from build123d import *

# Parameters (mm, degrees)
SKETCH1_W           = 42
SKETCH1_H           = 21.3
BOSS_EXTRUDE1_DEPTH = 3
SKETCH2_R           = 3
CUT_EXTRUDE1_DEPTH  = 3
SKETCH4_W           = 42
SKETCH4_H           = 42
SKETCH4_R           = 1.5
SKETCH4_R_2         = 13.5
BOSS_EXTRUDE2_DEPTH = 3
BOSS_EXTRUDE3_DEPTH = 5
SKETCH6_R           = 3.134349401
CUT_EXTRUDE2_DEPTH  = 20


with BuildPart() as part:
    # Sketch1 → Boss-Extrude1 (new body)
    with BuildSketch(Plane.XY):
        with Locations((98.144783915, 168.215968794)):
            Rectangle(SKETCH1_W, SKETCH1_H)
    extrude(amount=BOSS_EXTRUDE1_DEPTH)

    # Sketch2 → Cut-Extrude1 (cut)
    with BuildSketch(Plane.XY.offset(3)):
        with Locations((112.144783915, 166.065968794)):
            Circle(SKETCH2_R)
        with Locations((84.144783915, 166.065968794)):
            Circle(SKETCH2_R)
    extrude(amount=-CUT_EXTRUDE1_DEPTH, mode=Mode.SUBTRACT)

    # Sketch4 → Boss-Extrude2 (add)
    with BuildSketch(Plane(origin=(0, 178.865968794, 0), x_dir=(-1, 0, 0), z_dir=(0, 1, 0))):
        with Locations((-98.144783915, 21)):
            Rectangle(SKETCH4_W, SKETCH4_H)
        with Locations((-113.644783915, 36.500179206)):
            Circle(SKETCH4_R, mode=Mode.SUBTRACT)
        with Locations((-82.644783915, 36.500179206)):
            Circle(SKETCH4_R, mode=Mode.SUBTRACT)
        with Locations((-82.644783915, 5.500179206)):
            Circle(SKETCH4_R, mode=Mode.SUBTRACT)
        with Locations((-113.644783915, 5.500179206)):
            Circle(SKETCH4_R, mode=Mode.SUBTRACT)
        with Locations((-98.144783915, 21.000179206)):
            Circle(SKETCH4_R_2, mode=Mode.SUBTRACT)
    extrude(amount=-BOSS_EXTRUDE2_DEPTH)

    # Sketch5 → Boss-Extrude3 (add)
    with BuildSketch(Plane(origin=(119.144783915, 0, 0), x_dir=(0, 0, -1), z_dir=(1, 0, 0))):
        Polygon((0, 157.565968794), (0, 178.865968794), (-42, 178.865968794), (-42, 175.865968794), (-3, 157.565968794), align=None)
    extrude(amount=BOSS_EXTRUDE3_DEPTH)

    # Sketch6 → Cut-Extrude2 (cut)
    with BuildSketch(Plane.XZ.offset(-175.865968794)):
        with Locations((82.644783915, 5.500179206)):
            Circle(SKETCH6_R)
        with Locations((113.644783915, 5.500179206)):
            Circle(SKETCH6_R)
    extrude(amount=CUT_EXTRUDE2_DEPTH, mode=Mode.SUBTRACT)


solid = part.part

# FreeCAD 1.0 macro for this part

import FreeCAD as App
import Part
import Sketcher
from FreeCAD import Vector


def add_polygon(sketch, points):
    """Adds a closed chain of lines whose ends are joined by coincident constraints."""
    first, n = sketch.GeometryCount, len(points)
    for a, b in zip(points, points[1:] + points[:1]):
        sketch.addGeometry(Part.LineSegment(App.Vector(*a, 0), App.Vector(*b, 0)), False)
    for i in range(n):
        sketch.addConstraint(Sketcher.Constraint("Coincident", first + i, 2, first + (i + 1) % n, 1))

doc = App.newDocument("Part")
body = doc.addObject("PartDesign::Body", "Body")

sketch1 = doc.addObject("Sketcher::SketchObject", "Sketch")
body.addObject(sketch1)
sketch1.AttachmentSupport = (doc.XY_Plane, [""])
sketch1.MapMode = "FlatFace"
add_polygon(sketch1, [(77, 179), (77, 158), (119, 158), (119, 179)])
sketch1.addConstraint([
    Sketcher.Constraint("Vertical", 0),
    Sketcher.Constraint("Horizontal", 1),
    Sketcher.Constraint("Vertical", 2),
    Sketcher.Constraint("Horizontal", 3),
    Sketcher.Constraint("DistanceX", 1, 1, 1, 2, 42.0),
    Sketcher.Constraint("DistanceY", 0, 2, 0, 1, 21.3),
    Sketcher.Constraint("DistanceY", -1, 1, 0, 2, 157.565969),
    Sketcher.Constraint("DistanceX", -1, 1, 0, 2, 77.144784),
])
pad1 = doc.addObject("PartDesign::Pad", "Pad")
body.addObject(pad1)
pad1.Profile = sketch1
pad1.Length = 3

sketch2 = doc.addObject("Sketcher::SketchObject", "Sketch001")
body.addObject(sketch2)
sketch2.AttachmentSupport = (doc.XY_Plane, [""])
sketch2.MapMode = "FlatFace"
sketch2.AttachmentOffset = App.Placement(Vector(0, 0, 3), App.Rotation())
sketch2.addGeometry([
    Part.Circle(Vector(112.1, 166.1, 0), Vector(0, 0, 1), 3),
    Part.Circle(Vector(84.1, 166.1, 0), Vector(0, 0, 1), 3),
], False)
sketch2.addConstraint([
    Sketcher.Constraint("Equal", 0, 1),
    Sketcher.Constraint("Horizontal", 0, 3, 1, 3),
    Sketcher.Constraint("Diameter", 0, 6.0),
    Sketcher.Constraint("DistanceX", 1, 3, 0, 3, 28.0),
    Sketcher.Constraint("DistanceY", -1, 1, 0, 3, 166.065969),
    Sketcher.Constraint("DistanceX", -1, 1, 0, 3, 112.144784),
])
pocket1 = doc.addObject("PartDesign::Pocket", "Pocket")
body.addObject(pocket1)
pocket1.Profile = sketch2
pocket1.Length = 3

sketch3 = doc.addObject("Sketcher::SketchObject", "Sketch002")
body.addObject(sketch3)
sketch3.AttachmentSupport = (doc.XZ_Plane, [""])
sketch3.MapMode = "FlatFace"
sketch3.AttachmentOffset = App.Placement(Vector(0, 0, -178.865969), App.Rotation())
add_polygon(sketch3, [(119.1, 42), (119.1, 0), (77.1, 0), (77.1, 42)])
sketch3.addGeometry(Part.Circle(Vector(113.6, 5.5, 0), Vector(0, 0, 1), 1.5), False)
sketch3.addGeometry(Part.Circle(Vector(82.6, 5.5, 0), Vector(0, 0, 1), 1.5), False)
sketch3.addGeometry(Part.Circle(Vector(113.6, 36.5, 0), Vector(0, 0, 1), 1.5), False)
sketch3.addGeometry(Part.Circle(Vector(98.1, 21, 0), Vector(0, 0, 1), 13.5), False)
sketch3.addGeometry(Part.Circle(Vector(82.6, 36.5, 0), Vector(0, 0, 1), 1.5), False)
sketch3.addConstraint([
    Sketcher.Constraint("Vertical", 0),
    Sketcher.Constraint("Horizontal", 1),
    Sketcher.Constraint("Vertical", 2),
    Sketcher.Constraint("Horizontal", 3),
    Sketcher.Constraint("Equal", 4, 5),
    Sketcher.Constraint("Equal", 5, 6),
    Sketcher.Constraint("Equal", 6, 8),
    Sketcher.Constraint("PointOnObject", 0, 2, -1),
    Sketcher.Constraint("Horizontal", 4, 3, 5, 3),
    Sketcher.Constraint("Horizontal", 6, 3, 8, 3),
    Sketcher.Constraint("Vertical", 4, 3, 6, 3),
    Sketcher.Constraint("Vertical", 5, 3, 8, 3),
    Sketcher.Constraint("Equal", 3, 0),
    Sketcher.Constraint("Diameter", 4, 3.0),
    Sketcher.Constraint("Diameter", 7, 27.0),
    Sketcher.Constraint("DistanceX", 1, 2, 1, 1, 42.0),
    Sketcher.Constraint("DistanceX", 5, 3, 4, 3, 31.0),
    Sketcher.Constraint("DistanceY", 4, 3, 6, 3, 31.0),
    Sketcher.Constraint("DistanceX", 7, 3, 0, 2, 21.0),
    Sketcher.Constraint("DistanceX", 7, 3, 4, 3, 15.5),
    Sketcher.Constraint("DistanceY", 4, 3, 7, 3, 15.5),
    Sketcher.Constraint("DistanceY", -1, 1, 4, 3, 5.500179),
    Sketcher.Constraint("DistanceX", -1, 1, 4, 3, 113.644784),
])
pad2 = doc.addObject("PartDesign::Pad", "Pad001")
body.addObject(pad2)
pad2.Profile = sketch3
pad2.Length = 3

sketch4 = doc.addObject("Sketcher::SketchObject", "Sketch003")
body.addObject(sketch4)
sketch4.AttachmentSupport = (doc.YZ_Plane, [""])
sketch4.MapMode = "FlatFace"
sketch4.AttachmentOffset = App.Placement(Vector(0, 0, 119.144784), App.Rotation())
add_polygon(sketch4, [(157.6, 0), (178.9, 0), (178.9, 42), (175.9, 42), (157.6, 3)])
sketch4.addConstraint([
    Sketcher.Constraint("Horizontal", 0),
    Sketcher.Constraint("Vertical", 1),
    Sketcher.Constraint("Horizontal", 2),
    Sketcher.Constraint("Vertical", 4),
    Sketcher.Constraint("PointOnObject", 0, 2, -1),
    Sketcher.Constraint("Equal", 2, 4),
    Sketcher.Constraint("DistanceX", 2, 2, 2, 1, 3.0),
    Sketcher.Constraint("DistanceY", 1, 1, 1, 2, 42.0),
    Sketcher.Constraint("DistanceX", 0, 1, 0, 2, 21.3),
    Sketcher.Constraint("DistanceX", -1, 1, 0, 2, 178.865969),
])
pad3 = doc.addObject("PartDesign::Pad", "Pad002")
body.addObject(pad3)
pad3.Profile = sketch4
pad3.Length = 5

sketch5 = doc.addObject("Sketcher::SketchObject", "Sketch004")
body.addObject(sketch5)
sketch5.AttachmentSupport = (doc.XZ_Plane, [""])
sketch5.MapMode = "FlatFace"
sketch5.AttachmentOffset = App.Placement(Vector(0, 0, -175.865969), App.Rotation())
sketch5.addGeometry([
    Part.Circle(Vector(82.6, 5.5, 0), Vector(0, 0, 1), 3.1),
    Part.Circle(Vector(113.6, 5.5, 0), Vector(0, 0, 1), 3.1),
], False)
sketch5.addConstraint([
    Sketcher.Constraint("Equal", 0, 1),
    Sketcher.Constraint("Horizontal", 0, 3, 1, 3),
    Sketcher.Constraint("DistanceX", 0, 3, 1, 3, 31.0),
    Sketcher.Constraint("Diameter", 0, 6.268699),
    Sketcher.Constraint("DistanceY", -1, 1, 0, 3, 5.500179),
    Sketcher.Constraint("DistanceX", -1, 1, 0, 3, 82.644784),
])
pocket2 = doc.addObject("PartDesign::Pocket", "Pocket001")
body.addObject(pocket2)
pocket2.Profile = sketch5
pocket2.Length = 20
pocket2.Reversed = True

doc.recompute()
